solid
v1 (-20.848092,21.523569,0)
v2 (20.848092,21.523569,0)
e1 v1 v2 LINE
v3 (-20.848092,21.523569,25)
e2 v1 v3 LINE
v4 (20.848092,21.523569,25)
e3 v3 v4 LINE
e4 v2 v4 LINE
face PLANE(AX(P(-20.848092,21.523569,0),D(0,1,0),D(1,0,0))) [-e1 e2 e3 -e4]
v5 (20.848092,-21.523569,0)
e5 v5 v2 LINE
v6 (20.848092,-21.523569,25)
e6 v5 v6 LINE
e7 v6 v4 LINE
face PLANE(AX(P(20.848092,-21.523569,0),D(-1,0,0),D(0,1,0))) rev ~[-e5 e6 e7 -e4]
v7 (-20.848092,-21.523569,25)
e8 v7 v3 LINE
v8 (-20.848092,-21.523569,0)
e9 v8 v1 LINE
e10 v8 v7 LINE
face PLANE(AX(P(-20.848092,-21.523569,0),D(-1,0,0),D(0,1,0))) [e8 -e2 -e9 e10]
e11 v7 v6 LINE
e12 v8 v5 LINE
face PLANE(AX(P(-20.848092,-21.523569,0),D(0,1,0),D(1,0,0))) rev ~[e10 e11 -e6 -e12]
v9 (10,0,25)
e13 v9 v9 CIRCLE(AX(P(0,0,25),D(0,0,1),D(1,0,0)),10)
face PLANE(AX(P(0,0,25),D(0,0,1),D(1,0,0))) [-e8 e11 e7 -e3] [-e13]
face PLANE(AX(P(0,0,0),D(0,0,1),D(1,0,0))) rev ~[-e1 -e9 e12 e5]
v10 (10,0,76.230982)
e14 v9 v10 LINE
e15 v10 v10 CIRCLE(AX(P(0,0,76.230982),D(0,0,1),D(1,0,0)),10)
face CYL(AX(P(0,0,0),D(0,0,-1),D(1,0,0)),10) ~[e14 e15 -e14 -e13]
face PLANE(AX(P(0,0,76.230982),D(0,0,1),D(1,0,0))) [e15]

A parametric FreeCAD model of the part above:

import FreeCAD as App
import Part
import Sketcher
Q = App.Units.Quantity

doc = App.newDocument("Part")
params = doc.addObject("Spreadsheet::Sheet", "Params")
for row, (alias, value) in enumerate([
    ("sketch1_diameter", "20 mm"),
    ("pad1_length", "76.230982 mm"),
    ("sketch2_diameter", "20 mm"),
    ("pad2_length", "25 mm"),
], start=1):
    params.set(f"A{row}", alias)
    params.set(f"B{row}", "=" + value)
    params.setAlias(f"B{row}", alias)

body = doc.addObject("PartDesign::Body", "Body")

# Sketch on XY plane
sketch1 = body.newObject("Sketcher::SketchObject", "Sketch")
sketch1.AttachmentSupport = (doc.getObject("XY_Plane"), [""])
sketch1.MapMode = "FlatFace"
sketch1.addGeometry(Part.Circle(App.Vector(0, 0, 0), App.Vector(0, 0, 1), 10), False)
sketch1.addConstraint(Sketcher.Constraint("Coincident", 0, 3, -1, 1))
sketch1.addConstraint(Sketcher.Constraint("Diameter", 0, Q("20 mm")))
sketch1.setExpression("Constraints[1]", "Params.sketch1_diameter")
pad1 = body.newObject("PartDesign::Pad", "Pad")
pad1.Profile = sketch1
pad1.setExpression("Length", "Params.pad1_length")

# Sketch on XY plane
sketch2 = body.newObject("Sketcher::SketchObject", "Sketch001")
sketch2.AttachmentSupport = (doc.getObject("XY_Plane"), [""])
sketch2.MapMode = "FlatFace"
sketch2.addGeometry(Part.LineSegment(App.Vector(-21, 22, 0), App.Vector(-21, -22, 0)), False)
sketch2.addGeometry(Part.LineSegment(App.Vector(-21, -22, 0), App.Vector(21, -22, 0)), False)
sketch2.addGeometry(Part.LineSegment(App.Vector(21, -22, 0), App.Vector(21, 22, 0)), False)
sketch2.addGeometry(Part.LineSegment(App.Vector(21, 22, 0), App.Vector(-21, 22, 0)), False)
sketch2.addGeometry(Part.Circle(App.Vector(0, 0, 0), App.Vector(0, 0, 1), 10), False)
sketch2.addConstraint(Sketcher.Constraint("Coincident", 0, 2, 1, 1))
sketch2.addConstraint(Sketcher.Constraint("Coincident", 1, 2, 2, 1))
sketch2.addConstraint(Sketcher.Constraint("Coincident", 2, 2, 3, 1))
sketch2.addConstraint(Sketcher.Constraint("Coincident", 3, 2, 0, 1))
sketch2.addConstraint(Sketcher.Constraint("Vertical", 0))
sketch2.addConstraint(Sketcher.Constraint("Horizontal", 1))
sketch2.addConstraint(Sketcher.Constraint("Vertical", 2))
sketch2.addConstraint(Sketcher.Constraint("Horizontal", 3))
sketch2.addConstraint(Sketcher.Constraint("Coincident", 4, 3, -1, 1))
sketch2.addConstraint(Sketcher.Constraint("Symmetric", 0, 2, 2, 2, -1, 1))
sketch2.addConstraint(Sketcher.Constraint("Diameter", 4, Q("20 mm")))
sketch2.addConstraint(Sketcher.Constraint("DistanceX", 1, 1, 1, 2, Q("41.696184 mm")))
sketch2.addConstraint(Sketcher.Constraint("DistanceY", 0, 2, 0, 1, Q("43.047138 mm")))
sketch2.setExpression("Constraints[10]", "Params.sketch2_diameter")
pad2 = body.newObject("PartDesign::Pad", "Pad001")
pad2.Profile = sketch2
pad2.setExpression("Length", "Params.pad2_length")

doc.recompute()
